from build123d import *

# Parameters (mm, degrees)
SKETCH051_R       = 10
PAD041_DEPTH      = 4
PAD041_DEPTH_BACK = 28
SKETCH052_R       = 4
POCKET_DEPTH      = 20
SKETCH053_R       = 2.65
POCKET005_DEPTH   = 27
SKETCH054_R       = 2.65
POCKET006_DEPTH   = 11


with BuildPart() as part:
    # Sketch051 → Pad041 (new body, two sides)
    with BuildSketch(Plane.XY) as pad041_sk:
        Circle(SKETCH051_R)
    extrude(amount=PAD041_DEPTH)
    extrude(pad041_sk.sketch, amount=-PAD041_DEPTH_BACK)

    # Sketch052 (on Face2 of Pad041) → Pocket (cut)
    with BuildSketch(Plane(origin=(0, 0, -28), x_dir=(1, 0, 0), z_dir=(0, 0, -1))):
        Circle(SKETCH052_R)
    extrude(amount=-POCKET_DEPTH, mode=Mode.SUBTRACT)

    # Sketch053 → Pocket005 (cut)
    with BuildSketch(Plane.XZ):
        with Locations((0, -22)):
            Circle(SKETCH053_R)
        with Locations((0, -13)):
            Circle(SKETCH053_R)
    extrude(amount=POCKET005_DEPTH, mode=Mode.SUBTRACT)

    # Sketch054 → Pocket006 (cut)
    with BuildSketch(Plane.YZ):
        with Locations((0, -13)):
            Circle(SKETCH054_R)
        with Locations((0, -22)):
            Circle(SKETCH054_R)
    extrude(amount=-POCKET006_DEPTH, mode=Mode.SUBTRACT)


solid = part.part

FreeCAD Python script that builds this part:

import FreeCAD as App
import Part
import Sketcher

V = App.Vector

doc = App.newDocument("Part")
body = doc.addObject("PartDesign::Body", "Body")

sketch1 = body.newObject("Sketcher::SketchObject", "Sketch")
sketch1.AttachmentSupport = (doc.getObject("XY_Plane"), [""])
sketch1.MapMode = "FlatFace"
sketch1.addGeometry(Part.Circle(V(0, 0, 0), V(0, 0, 1), 10), False)
sketch1.addConstraint([
    Sketcher.Constraint("Coincident", 0, 3, -1, 1),
    Sketcher.Constraint("Diameter", 0, 20.0),
])
pad1 = body.newObject("PartDesign::Pad", "Pad")
pad1.Profile = sketch1
pad1.Type = "TwoLengths"
pad1.Length = 4
pad1.Length2 = 28

sketch2 = body.newObject("Sketcher::SketchObject", "Sketch001")
sketch2.AttachmentSupport = (doc.getObject("XY_Plane"), [""])
sketch2.MapMode = "FlatFace"
sketch2.AttachmentOffset = App.Placement(V(0, 0, -28), App.Rotation())
sketch2.addGeometry(Part.Circle(V(0, 0, 0), V(0, 0, 1), 4), False)
sketch2.addConstraint([
    Sketcher.Constraint("Coincident", 0, 3, -1, 1),
    Sketcher.Constraint("Diameter", 0, 8.0),
])
pocket1 = body.newObject("PartDesign::Pocket", "Pocket")
pocket1.Profile = sketch2
pocket1.Length = 20
pocket1.Reversed = True

sketch3 = body.newObject("Sketcher::SketchObject", "Sketch002")
sketch3.AttachmentSupport = (doc.getObject("XZ_Plane"), [""])
sketch3.MapMode = "FlatFace"
sketch3.addGeometry([
    Part.Circle(V(0, -22, 0), V(0, 0, 1), 2.6),
    Part.Circle(V(0, -13, 0), V(0, 0, 1), 2.6),
], False)
sketch3.addConstraint([
    Sketcher.Constraint("Equal", 0, 1),
    Sketcher.Constraint("PointOnObject", 0, 3, -2),
    Sketcher.Constraint("PointOnObject", 1, 3, -2),
    Sketcher.Constraint("Diameter", 0, 5.3),
    Sketcher.Constraint("DistanceY", 0, 3, -1, 1, 22.0),
    Sketcher.Constraint("DistanceY", 1, 3, -1, 1, 13.0),
])
pocket2 = body.newObject("PartDesign::Pocket", "Pocket001")
pocket2.Profile = sketch3
pocket2.Length = 27
pocket2.Reversed = True

sketch4 = body.newObject("Sketcher::SketchObject", "Sketch003")
sketch4.AttachmentSupport = (doc.getObject("YZ_Plane"), [""])
sketch4.MapMode = "FlatFace"
sketch4.addGeometry([
    Part.Circle(V(0, -13, 0), V(0, 0, 1), 2.6),
    Part.Circle(V(0, -22, 0), V(0, 0, 1), 2.6),
], False)
sketch4.addConstraint([
    Sketcher.Constraint("Equal", 0, 1),
    Sketcher.Constraint("PointOnObject", 0, 3, -2),
    Sketcher.Constraint("PointOnObject", 1, 3, -2),
    Sketcher.Constraint("Diameter", 0, 5.3),
    Sketcher.Constraint("DistanceY", 0, 3, -1, 1, 13.0),
    Sketcher.Constraint("DistanceY", 1, 3, -1, 1, 22.0),
])
pocket3 = body.newObject("PartDesign::Pocket", "Pocket002")
pocket3.Profile = sketch4
pocket3.Length = 11

doc.recompute()
